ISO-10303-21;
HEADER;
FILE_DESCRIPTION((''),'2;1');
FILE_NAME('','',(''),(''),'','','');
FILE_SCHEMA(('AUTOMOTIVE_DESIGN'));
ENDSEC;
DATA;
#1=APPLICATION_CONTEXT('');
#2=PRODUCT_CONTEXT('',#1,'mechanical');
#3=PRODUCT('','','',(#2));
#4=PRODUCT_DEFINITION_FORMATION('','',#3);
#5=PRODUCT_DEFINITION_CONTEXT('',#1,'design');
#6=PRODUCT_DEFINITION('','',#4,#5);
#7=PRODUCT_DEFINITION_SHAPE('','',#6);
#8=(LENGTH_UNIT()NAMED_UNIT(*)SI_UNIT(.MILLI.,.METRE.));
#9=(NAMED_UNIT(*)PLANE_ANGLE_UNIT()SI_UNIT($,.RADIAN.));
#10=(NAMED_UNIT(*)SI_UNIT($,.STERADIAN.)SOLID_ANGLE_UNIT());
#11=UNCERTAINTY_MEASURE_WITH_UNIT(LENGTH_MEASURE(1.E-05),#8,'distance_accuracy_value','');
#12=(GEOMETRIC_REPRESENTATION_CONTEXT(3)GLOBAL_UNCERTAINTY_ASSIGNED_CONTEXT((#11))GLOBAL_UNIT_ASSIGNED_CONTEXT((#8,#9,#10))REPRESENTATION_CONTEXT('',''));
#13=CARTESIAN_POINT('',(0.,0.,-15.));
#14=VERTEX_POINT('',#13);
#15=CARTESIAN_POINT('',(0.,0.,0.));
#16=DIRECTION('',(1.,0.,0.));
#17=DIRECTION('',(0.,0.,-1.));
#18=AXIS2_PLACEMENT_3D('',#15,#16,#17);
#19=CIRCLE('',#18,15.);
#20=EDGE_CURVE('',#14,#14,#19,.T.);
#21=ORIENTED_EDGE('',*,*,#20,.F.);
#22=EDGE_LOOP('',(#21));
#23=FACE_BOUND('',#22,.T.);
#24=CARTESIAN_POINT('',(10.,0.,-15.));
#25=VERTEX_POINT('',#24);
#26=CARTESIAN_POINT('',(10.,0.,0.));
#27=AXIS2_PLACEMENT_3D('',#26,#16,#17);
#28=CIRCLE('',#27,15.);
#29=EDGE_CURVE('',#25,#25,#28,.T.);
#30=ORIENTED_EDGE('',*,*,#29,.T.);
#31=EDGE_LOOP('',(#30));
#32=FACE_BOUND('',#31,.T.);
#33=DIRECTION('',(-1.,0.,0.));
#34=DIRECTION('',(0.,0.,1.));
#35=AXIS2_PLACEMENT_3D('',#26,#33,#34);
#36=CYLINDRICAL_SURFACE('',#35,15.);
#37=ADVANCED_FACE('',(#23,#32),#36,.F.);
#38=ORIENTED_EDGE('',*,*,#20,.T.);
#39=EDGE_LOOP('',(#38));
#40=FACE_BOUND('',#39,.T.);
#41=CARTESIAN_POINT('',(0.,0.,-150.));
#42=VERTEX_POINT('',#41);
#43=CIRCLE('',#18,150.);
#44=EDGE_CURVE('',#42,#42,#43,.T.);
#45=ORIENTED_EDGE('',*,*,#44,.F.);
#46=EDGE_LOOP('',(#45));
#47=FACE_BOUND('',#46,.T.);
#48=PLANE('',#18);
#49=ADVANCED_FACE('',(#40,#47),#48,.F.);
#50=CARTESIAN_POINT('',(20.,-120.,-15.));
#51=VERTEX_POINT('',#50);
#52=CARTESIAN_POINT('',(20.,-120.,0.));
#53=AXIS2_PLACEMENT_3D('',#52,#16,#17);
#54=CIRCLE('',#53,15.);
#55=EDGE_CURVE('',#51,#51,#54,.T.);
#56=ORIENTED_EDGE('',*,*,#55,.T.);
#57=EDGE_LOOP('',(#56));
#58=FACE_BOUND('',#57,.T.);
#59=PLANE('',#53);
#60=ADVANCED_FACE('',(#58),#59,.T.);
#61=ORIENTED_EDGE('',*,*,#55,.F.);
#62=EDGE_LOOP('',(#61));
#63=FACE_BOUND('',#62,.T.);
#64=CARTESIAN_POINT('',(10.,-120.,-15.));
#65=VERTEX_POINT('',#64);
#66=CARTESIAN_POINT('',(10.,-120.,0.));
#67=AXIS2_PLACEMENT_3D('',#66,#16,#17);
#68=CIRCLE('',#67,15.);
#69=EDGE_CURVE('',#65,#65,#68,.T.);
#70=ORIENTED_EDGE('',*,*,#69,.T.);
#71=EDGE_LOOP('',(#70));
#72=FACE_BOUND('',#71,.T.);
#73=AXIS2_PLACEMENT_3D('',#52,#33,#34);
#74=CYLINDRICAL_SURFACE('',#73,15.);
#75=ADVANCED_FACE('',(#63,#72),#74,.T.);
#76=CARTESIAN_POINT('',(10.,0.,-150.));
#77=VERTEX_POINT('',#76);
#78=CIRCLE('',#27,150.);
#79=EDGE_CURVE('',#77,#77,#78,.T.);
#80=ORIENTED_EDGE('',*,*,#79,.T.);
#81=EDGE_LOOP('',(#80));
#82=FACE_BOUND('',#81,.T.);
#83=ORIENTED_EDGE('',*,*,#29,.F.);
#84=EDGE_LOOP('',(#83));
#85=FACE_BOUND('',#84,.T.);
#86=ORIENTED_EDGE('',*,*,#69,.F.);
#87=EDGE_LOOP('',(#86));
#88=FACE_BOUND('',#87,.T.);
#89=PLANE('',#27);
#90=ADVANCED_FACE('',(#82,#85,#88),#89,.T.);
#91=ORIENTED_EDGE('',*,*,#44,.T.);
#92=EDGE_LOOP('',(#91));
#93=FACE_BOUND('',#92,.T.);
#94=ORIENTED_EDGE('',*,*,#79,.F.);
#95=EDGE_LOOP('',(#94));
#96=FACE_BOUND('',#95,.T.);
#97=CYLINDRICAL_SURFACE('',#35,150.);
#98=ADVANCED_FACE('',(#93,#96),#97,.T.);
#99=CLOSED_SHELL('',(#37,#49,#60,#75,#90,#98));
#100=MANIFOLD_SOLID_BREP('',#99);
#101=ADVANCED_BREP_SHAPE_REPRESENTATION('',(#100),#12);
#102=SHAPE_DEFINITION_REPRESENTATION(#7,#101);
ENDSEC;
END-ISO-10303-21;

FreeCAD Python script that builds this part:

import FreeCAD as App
import Part
import Sketcher
from FreeCAD import Vector
Q = App.Units.Quantity

doc = App.newDocument("Part")
params = doc.addObject("Spreadsheet::Sheet", "Params")
for row, (alias, value) in enumerate([
    ("sketch1_diameter", "300 mm"),
    ("sketch1_diameter2", "30 mm"),
    ("pad1_length", "10 mm"),
    ("sketch2_diameter", "30 mm"),
    ("pad2_length", "10 mm"),
], start=1):
    params.set(f"A{row}", alias)
    params.set(f"B{row}", "=" + value)
    params.setAlias(f"B{row}", alias)

body = doc.addObject("PartDesign::Body", "Body")

# Sketch on YZ plane
sketch1 = body.newObject("Sketcher::SketchObject", "Sketch")
sketch1.AttachmentSupport = (doc.getObject("YZ_Plane"), [""])
sketch1.MapMode = "FlatFace"
sketch1.addGeometry(Part.Circle(Vector(0, 0, 0), Vector(0, 0, 1), 150), False)
sketch1.addGeometry(Part.Circle(Vector(0, 0, 0), Vector(0, 0, 1), 15), False)
sketch1.addConstraint(Sketcher.Constraint("Coincident", 0, 3, -1, 1))
sketch1.addConstraint(Sketcher.Constraint("Coincident", 1, 3, -1, 1))
sketch1.addConstraint(Sketcher.Constraint("Diameter", 0, Q("300 mm")))
sketch1.addConstraint(Sketcher.Constraint("Diameter", 1, Q("30 mm")))
sketch1.setExpression("Constraints[2]", "Params.sketch1_diameter")
sketch1.setExpression("Constraints[3]", "Params.sketch1_diameter2")
pad1 = body.newObject("PartDesign::Pad", "Pad")
pad1.Profile = sketch1
pad1.setExpression("Length", "Params.pad1_length")

# Sketch on YZ plane
sketch2 = body.newObject("Sketcher::SketchObject", "Sketch001")
sketch2.AttachmentSupport = (doc.getObject("YZ_Plane"), [""])
sketch2.MapMode = "FlatFace"
sketch2.AttachmentOffset = App.Placement(Vector(0, 0, 10), App.Rotation())
sketch2.addGeometry(Part.Circle(Vector(-120, 0, 0), Vector(0, 0, 1), 15), False)
sketch2.addConstraint(Sketcher.Constraint("PointOnObject", 0, 3, -1))
sketch2.addConstraint(Sketcher.Constraint("Diameter", 0, Q("30 mm")))
sketch2.addConstraint(Sketcher.Constraint("DistanceX", 0, 3, -1, 1, Q("120 mm")))
sketch2.setExpression("Constraints[1]", "Params.sketch2_diameter")
pad2 = body.newObject("PartDesign::Pad", "Pad001")
pad2.Profile = sketch2
pad2.setExpression("Length", "Params.pad2_length")

doc.recompute()
